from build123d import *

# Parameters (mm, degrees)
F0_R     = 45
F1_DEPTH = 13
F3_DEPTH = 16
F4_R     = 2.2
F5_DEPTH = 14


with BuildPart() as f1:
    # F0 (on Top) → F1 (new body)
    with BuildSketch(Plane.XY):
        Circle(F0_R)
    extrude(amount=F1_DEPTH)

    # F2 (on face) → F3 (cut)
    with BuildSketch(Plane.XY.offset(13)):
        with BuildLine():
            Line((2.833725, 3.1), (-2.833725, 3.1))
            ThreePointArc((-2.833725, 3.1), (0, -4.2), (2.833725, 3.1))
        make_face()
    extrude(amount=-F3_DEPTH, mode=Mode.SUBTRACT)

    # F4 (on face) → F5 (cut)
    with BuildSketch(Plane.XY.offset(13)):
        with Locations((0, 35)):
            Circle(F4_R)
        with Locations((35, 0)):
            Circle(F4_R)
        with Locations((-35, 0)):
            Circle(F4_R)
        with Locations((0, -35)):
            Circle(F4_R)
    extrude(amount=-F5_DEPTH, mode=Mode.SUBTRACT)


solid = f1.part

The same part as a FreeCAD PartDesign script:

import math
import FreeCAD as App
import Part
import Sketcher

V = App.Vector

doc = App.newDocument("Part")
params = doc.addObject("Spreadsheet::Sheet", "Params")
for row, (alias, value) in enumerate([
    ("sketch1_diameter", "90 mm"),
    ("pad1_length", "13 mm"),
    ("sketch2_radius", "4.2 mm"),
    ("pocket1_length", "16 mm"),
    ("sketch3_diameter", "4.4 mm"),
    ("pocket2_length", "14 mm"),
], start=1):
    params.set(f"A{row}", alias)
    params.set(f"B{row}", "=" + value)
    params.setAlias(f"B{row}", alias)

body = doc.addObject("PartDesign::Body", "Body")

# Sketch on XY plane
sketch1 = doc.addObject("Sketcher::SketchObject", "Sketch")
body.addObject(sketch1)
sketch1.AttachmentSupport = (doc.XY_Plane, [""])
sketch1.MapMode = "FlatFace"
sketch1.addGeometry(Part.Circle(V(0, 0, 0), V(0, 0, 1), 45), False)
sketch1.addConstraint(Sketcher.Constraint("Coincident", 0, 3, -1, 1))
sketch1.addConstraint(Sketcher.Constraint("Diameter", 0, 90.0))
sketch1.setExpression("Constraints[1]", "Params.sketch1_diameter")
pad1 = doc.addObject("PartDesign::Pad", "Pad")
body.addObject(pad1)
pad1.Profile = sketch1
pad1.setExpression("Length", "Params.pad1_length")

# Sketch on XY plane
sketch2 = doc.addObject("Sketcher::SketchObject", "Sketch001")
body.addObject(sketch2)
sketch2.AttachmentSupport = (doc.XY_Plane, [""])
sketch2.MapMode = "FlatFace"
sketch2.AttachmentOffset = App.Placement(V(0, 0, 13), App.Rotation())
sketch2.addGeometry(Part.LineSegment(V(2.8, 3.1, 0), V(-2.8, 3.1, 0)), False)
sketch2.addGeometry(Part.ArcOfCircle(Part.Circle(V(0, 0, 0), V(0, 0, 1), 4.2), math.radians(132), math.radians(408)), False)
sketch2.addConstraint(Sketcher.Constraint("Coincident", 0, 1, 1, 2))
sketch2.addConstraint(Sketcher.Constraint("Coincident", 1, 1, 0, 2))
sketch2.addConstraint(Sketcher.Constraint("Horizontal", 0))
sketch2.addConstraint(Sketcher.Constraint("Coincident", 1, 3, -1, 1))
sketch2.addConstraint(Sketcher.Constraint("Radius", 1, 4.2))
sketch2.addConstraint(Sketcher.Constraint("DistanceY", -1, 1, 0, 1, 3.1))
sketch2.setExpression("Constraints[4]", "Params.sketch2_radius")
pocket1 = doc.addObject("PartDesign::Pocket", "Pocket")
body.addObject(pocket1)
pocket1.Profile = sketch2
pocket1.setExpression("Length", "Params.pocket1_length")

# Sketch on XY plane
sketch3 = doc.addObject("Sketcher::SketchObject", "Sketch002")
body.addObject(sketch3)
sketch3.AttachmentSupport = (doc.XY_Plane, [""])
sketch3.MapMode = "FlatFace"
sketch3.AttachmentOffset = App.Placement(V(0, 0, 13), App.Rotation())
sketch3.addGeometry(Part.Circle(V(0, 35, 0), V(0, 0, 1), 2.2), False)
sketch3.addGeometry(Part.Circle(V(35, 0, 0), V(0, 0, 1), 2.2), False)
sketch3.addGeometry(Part.Circle(V(-35, 0, 0), V(0, 0, 1), 2.2), False)
sketch3.addGeometry(Part.Circle(V(0, -35, 0), V(0, 0, 1), 2.2), False)
sketch3.addConstraint(Sketcher.Constraint("Equal", 0, 1))
sketch3.addConstraint(Sketcher.Constraint("Equal", 1, 2))
sketch3.addConstraint(Sketcher.Constraint("Equal", 2, 3))
sketch3.addConstraint(Sketcher.Constraint("Symmetric", 1, 3, 2, 3, -1, 1))
sketch3.addConstraint(Sketcher.Constraint("Symmetric", 0, 3, 3, 3, -1, 1))
sketch3.addConstraint(Sketcher.Constraint("PointOnObject", 0, 3, -2))
sketch3.addConstraint(Sketcher.Constraint("PointOnObject", 1, 3, -1))
sketch3.addConstraint(Sketcher.Constraint("Diameter", 0, 4.4))
sketch3.addConstraint(Sketcher.Constraint("DistanceY", -1, 1, 0, 3, 35.0))
sketch3.addConstraint(Sketcher.Constraint("DistanceX", -1, 1, 1, 3, 35.0))
sketch3.setExpression("Constraints[7]", "Params.sketch3_diameter")
pocket2 = doc.addObject("PartDesign::Pocket", "Pocket001")
body.addObject(pocket2)
pocket2.Profile = sketch3
pocket2.setExpression("Length", "Params.pocket2_length")

doc.recompute()
